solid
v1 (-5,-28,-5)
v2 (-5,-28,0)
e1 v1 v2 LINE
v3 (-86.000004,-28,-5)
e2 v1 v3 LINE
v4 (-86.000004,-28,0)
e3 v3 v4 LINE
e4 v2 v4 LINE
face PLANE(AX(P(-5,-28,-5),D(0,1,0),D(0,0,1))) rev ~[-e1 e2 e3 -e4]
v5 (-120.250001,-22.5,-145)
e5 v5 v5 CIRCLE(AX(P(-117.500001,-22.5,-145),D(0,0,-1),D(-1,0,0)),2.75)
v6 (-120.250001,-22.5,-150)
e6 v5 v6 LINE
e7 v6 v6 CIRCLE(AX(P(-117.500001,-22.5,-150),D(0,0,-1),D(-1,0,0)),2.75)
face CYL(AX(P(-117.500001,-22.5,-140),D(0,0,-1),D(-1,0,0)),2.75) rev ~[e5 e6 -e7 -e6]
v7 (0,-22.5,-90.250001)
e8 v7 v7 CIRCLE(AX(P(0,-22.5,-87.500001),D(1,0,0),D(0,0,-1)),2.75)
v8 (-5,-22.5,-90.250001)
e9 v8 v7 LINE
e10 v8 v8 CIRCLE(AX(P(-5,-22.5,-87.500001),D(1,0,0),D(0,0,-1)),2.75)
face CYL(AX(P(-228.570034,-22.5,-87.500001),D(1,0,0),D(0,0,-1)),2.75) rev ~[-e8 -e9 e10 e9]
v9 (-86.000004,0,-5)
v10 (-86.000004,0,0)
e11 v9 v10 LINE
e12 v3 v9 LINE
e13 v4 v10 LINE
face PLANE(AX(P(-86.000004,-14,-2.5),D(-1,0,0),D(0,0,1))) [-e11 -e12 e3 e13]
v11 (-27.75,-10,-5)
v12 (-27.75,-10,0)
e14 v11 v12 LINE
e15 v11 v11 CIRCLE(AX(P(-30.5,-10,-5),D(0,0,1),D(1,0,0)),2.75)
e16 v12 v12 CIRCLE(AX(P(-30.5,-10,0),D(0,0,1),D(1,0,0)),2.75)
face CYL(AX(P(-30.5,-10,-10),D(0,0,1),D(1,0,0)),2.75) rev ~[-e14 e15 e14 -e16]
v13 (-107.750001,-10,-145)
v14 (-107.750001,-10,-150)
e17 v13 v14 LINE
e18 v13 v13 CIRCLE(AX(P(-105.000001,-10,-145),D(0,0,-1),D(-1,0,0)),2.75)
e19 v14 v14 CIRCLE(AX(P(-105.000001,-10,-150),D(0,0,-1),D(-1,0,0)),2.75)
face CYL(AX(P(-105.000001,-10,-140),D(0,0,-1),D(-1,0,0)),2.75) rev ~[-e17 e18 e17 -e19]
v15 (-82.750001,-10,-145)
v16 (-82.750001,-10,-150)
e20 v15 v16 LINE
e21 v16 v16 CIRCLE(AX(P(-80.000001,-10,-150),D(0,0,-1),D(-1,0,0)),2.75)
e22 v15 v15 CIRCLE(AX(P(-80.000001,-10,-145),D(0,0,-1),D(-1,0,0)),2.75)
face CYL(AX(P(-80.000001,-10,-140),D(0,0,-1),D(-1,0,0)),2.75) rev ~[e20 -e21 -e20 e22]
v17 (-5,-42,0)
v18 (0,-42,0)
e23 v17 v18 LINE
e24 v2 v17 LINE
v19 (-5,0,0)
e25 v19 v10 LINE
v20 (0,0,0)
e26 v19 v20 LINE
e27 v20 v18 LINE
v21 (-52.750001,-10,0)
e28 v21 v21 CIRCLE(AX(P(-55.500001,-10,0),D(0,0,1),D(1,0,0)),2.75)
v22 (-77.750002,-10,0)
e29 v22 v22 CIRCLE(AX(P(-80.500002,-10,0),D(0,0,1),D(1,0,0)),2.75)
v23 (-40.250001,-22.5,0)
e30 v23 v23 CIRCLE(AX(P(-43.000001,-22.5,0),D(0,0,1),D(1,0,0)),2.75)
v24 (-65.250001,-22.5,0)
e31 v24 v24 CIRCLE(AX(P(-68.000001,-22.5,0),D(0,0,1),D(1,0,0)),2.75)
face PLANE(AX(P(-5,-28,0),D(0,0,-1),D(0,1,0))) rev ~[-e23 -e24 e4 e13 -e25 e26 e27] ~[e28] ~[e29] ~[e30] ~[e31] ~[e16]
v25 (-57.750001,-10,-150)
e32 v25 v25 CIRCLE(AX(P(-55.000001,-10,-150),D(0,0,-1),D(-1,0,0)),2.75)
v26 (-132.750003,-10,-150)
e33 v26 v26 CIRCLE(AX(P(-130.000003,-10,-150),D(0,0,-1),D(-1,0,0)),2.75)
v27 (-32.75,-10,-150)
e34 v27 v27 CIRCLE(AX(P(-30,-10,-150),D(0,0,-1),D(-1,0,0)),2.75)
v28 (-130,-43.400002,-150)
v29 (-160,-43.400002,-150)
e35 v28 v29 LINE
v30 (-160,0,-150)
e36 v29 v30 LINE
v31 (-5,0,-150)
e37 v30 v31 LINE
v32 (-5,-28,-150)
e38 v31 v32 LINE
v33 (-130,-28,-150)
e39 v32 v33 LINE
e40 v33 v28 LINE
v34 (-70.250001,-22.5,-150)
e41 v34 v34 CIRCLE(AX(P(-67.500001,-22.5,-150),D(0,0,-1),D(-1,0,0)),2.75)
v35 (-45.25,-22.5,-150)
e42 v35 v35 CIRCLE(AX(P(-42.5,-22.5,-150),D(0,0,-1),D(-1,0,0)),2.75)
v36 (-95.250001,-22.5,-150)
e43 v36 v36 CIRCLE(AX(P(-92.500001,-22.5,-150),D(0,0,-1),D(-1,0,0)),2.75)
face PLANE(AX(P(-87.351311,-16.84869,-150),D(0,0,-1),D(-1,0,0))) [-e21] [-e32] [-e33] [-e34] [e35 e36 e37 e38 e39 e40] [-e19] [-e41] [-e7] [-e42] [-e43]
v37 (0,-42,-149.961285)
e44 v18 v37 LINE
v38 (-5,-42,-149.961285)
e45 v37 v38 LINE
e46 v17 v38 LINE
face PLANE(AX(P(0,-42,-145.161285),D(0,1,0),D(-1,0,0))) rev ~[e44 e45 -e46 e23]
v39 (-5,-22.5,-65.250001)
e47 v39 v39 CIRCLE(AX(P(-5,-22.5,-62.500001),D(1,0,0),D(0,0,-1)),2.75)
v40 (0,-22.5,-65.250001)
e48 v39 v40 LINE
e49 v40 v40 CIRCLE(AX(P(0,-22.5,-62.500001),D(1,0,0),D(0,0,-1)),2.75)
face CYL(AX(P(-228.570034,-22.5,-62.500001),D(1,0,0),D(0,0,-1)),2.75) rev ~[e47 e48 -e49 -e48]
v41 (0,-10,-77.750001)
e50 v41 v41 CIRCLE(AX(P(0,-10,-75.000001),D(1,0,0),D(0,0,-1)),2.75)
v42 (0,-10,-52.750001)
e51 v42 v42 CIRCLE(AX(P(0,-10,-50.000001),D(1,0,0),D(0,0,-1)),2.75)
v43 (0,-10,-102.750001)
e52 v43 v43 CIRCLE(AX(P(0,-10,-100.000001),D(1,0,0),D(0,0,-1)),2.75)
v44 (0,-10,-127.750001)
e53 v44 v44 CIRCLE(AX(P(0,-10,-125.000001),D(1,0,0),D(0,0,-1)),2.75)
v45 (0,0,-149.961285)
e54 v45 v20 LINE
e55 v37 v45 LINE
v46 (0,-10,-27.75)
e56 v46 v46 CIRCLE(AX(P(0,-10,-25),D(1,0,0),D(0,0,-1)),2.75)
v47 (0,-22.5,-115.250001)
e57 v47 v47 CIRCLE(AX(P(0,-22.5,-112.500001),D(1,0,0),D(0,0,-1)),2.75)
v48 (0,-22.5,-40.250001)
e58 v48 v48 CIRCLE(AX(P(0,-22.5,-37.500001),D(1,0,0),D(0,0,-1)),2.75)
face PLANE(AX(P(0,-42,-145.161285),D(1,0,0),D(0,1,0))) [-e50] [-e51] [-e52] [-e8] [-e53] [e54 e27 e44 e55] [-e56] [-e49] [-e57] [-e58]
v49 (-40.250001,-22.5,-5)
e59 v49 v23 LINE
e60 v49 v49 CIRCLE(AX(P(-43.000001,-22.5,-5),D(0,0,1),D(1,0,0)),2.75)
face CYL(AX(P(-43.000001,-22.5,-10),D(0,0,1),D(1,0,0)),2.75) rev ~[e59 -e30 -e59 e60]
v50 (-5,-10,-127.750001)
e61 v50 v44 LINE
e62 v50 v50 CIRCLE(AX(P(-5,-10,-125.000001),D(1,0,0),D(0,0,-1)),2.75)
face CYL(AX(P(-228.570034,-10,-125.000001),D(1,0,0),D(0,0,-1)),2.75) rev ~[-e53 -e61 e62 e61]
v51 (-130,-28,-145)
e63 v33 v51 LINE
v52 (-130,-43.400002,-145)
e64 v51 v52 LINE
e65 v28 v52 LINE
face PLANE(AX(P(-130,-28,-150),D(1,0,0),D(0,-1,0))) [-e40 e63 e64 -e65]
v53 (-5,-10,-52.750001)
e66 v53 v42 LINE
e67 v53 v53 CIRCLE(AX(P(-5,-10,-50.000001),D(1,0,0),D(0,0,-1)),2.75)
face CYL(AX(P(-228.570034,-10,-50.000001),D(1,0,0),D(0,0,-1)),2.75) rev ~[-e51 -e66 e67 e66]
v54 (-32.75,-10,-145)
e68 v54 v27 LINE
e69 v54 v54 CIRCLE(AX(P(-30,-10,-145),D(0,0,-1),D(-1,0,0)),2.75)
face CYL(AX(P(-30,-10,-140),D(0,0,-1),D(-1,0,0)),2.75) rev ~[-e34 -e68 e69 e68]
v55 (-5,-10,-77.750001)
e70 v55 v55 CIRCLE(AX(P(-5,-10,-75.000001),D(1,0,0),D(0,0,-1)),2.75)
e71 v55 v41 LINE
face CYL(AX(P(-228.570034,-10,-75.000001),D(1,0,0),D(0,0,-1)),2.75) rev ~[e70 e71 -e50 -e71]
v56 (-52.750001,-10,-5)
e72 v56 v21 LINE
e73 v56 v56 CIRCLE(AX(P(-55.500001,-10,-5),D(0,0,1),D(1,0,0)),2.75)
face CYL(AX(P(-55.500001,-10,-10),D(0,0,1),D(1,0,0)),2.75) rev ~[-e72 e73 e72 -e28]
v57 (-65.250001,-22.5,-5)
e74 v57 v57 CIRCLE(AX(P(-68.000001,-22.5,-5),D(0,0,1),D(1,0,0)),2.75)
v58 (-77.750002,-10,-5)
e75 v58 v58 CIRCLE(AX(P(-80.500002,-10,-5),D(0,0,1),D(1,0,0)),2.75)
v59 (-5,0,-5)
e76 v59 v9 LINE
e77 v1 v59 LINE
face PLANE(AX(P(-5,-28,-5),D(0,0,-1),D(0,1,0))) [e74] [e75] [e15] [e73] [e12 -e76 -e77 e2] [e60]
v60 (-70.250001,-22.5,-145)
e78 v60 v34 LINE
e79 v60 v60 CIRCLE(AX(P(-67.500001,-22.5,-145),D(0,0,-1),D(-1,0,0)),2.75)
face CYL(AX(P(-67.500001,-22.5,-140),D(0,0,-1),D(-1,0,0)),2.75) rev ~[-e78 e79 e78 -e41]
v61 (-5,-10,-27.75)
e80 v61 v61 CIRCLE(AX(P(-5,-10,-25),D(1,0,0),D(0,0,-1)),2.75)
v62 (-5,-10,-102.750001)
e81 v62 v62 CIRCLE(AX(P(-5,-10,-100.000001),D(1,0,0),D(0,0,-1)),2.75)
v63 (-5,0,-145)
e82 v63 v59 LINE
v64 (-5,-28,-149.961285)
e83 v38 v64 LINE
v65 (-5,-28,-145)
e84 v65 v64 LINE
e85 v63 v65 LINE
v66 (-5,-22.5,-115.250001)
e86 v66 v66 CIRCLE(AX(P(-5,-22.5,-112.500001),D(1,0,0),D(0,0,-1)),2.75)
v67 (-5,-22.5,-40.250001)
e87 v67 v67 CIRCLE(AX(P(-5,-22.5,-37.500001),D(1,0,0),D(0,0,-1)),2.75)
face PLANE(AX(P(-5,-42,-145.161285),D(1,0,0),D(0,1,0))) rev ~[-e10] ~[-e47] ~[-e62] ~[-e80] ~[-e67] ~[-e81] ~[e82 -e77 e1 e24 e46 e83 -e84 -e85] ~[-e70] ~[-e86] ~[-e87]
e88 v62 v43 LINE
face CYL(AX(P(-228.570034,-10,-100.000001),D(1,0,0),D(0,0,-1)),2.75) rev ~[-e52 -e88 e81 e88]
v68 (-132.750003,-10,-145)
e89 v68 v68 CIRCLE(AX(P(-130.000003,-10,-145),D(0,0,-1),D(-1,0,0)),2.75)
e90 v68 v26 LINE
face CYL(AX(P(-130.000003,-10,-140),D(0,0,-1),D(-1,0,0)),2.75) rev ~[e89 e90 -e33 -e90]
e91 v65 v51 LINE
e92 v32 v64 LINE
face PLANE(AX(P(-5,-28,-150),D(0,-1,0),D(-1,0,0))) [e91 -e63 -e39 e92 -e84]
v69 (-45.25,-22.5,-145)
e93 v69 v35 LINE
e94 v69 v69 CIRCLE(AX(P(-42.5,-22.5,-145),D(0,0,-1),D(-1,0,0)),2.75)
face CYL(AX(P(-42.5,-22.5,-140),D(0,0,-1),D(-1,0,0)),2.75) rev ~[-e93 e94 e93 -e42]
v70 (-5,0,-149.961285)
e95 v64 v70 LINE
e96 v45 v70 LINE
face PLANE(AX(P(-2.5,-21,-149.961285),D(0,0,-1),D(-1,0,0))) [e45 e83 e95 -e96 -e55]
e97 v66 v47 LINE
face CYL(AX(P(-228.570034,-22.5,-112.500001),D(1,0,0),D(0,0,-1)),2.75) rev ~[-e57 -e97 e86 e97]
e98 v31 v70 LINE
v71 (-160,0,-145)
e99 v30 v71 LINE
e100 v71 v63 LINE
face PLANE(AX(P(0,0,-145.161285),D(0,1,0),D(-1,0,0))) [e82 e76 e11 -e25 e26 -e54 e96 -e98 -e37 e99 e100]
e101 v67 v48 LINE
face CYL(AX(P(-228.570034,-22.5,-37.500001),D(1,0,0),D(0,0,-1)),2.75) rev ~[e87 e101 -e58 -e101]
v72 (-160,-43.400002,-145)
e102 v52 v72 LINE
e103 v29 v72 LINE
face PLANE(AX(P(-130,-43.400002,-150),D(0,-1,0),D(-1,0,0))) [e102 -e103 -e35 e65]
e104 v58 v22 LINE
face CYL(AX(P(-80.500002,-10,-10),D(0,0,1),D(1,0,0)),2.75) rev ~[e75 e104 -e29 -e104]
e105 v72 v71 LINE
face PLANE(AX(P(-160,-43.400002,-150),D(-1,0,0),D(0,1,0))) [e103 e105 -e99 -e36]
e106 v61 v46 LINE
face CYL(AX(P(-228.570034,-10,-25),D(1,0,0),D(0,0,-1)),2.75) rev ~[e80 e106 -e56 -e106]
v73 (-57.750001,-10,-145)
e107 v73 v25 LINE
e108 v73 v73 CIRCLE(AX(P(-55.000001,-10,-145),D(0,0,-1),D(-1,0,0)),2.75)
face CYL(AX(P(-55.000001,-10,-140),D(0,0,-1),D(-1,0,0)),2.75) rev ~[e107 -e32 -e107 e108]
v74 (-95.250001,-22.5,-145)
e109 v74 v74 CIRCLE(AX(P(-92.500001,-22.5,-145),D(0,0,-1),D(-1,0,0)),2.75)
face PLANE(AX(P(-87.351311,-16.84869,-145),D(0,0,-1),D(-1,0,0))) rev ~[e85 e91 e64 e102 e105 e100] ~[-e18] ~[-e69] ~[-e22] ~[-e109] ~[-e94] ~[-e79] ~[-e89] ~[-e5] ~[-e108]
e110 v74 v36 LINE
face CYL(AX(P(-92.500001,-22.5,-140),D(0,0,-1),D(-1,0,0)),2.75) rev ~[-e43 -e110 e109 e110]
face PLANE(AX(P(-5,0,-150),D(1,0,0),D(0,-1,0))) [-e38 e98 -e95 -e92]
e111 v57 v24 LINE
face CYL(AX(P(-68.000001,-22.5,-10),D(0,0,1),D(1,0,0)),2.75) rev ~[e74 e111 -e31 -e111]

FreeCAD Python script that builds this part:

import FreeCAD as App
import Part
import Sketcher
from FreeCAD import Vector
Q = App.Units.Quantity


def add_polygon(sketch, points):
    """Adds a closed chain of lines whose ends are joined by coincident constraints."""
    first, n = sketch.GeometryCount, len(points)
    for a, b in zip(points, points[1:] + points[:1]):
        sketch.addGeometry(Part.LineSegment(App.Vector(*a, 0), App.Vector(*b, 0)), False)
    for i in range(n):
        sketch.addConstraint(Sketcher.Constraint("Coincident", first + i, 2, first + (i + 1) % n, 1))

doc = App.newDocument("Part")
body = doc.addObject("PartDesign::Body", "Body")

sketch1 = body.newObject("Sketcher::SketchObject", "Sketch")
sketch1.AttachmentSupport = (doc.getObject("YZ_Plane"), [""])
sketch1.MapMode = "FlatFace"
sketch1.AttachmentOffset = App.Placement(Vector(0, 0, -5), App.Rotation())
add_polygon(sketch1, [(0, 0), (0, -145), (-42, -145), (-42, 0)])
sketch1.addConstraint(Sketcher.Constraint("Vertical", 0))
sketch1.addConstraint(Sketcher.Constraint("Horizontal", 1))
sketch1.addConstraint(Sketcher.Constraint("Vertical", 2))
sketch1.addConstraint(Sketcher.Constraint("Horizontal", 3))
sketch1.addConstraint(Sketcher.Constraint("Coincident", 3, 2, -1, 1))
sketch1.addConstraint(Sketcher.Constraint("DistanceX", 1, 2, 1, 1, Q("42 mm")))
sketch1.addConstraint(Sketcher.Constraint("DistanceY", 0, 2, 0, 1, Q("145.161285 mm")))
pad1 = body.newObject("PartDesign::Pad", "Pad")
pad1.Profile = sketch1
pad1.Length = 5

sketch2 = body.newObject("Sketcher::SketchObject", "Sketch001")
sketch2.AttachmentSupport = (doc.getObject("XY_Plane"), [""])
sketch2.MapMode = "FlatFace"
sketch2.AttachmentOffset = App.Placement(Vector(0, 0, -150), App.Rotation())
add_polygon(sketch2, [(-130, -43), (-160, -43), (-160, 0), (-5, 0), (-5, -28), (-130, -28)])
sketch2.addConstraint(Sketcher.Constraint("Horizontal", 0))
sketch2.addConstraint(Sketcher.Constraint("Vertical", 1))
sketch2.addConstraint(Sketcher.Constraint("Horizontal", 2))
sketch2.addConstraint(Sketcher.Constraint("Vertical", 3))
sketch2.addConstraint(Sketcher.Constraint("Horizontal", 4))
sketch2.addConstraint(Sketcher.Constraint("Vertical", 5))
sketch2.addConstraint(Sketcher.Constraint("PointOnObject", 1, 2, -1))
sketch2.addConstraint(Sketcher.Constraint("DistanceX", 0, 2, 0, 1, Q("30 mm")))
sketch2.addConstraint(Sketcher.Constraint("DistanceX", 2, 1, 2, 2, Q("155 mm")))
sketch2.addConstraint(Sketcher.Constraint("DistanceY", 3, 2, 3, 1, Q("28 mm")))
sketch2.addConstraint(Sketcher.Constraint("DistanceY", 1, 1, 1, 2, Q("43.400002 mm")))
sketch2.addConstraint(Sketcher.Constraint("DistanceX", 0, 2, -1, 1, Q("160 mm")))
pad2 = body.newObject("PartDesign::Pad", "Pad001")
pad2.Profile = sketch2
pad2.Length = 5

sketch3 = body.newObject("Sketcher::SketchObject", "Sketch002")
sketch3.AttachmentSupport = (doc.getObject("YZ_Plane"), [""])
sketch3.MapMode = "FlatFace"
sketch3.AttachmentOffset = App.Placement(Vector(0, 0, -5), App.Rotation())
add_polygon(sketch3, [(0, -5), (-28, -5), (-28, 0), (0, 0)])
sketch3.addConstraint(Sketcher.Constraint("Horizontal", 0))
sketch3.addConstraint(Sketcher.Constraint("Vertical", 1))
sketch3.addConstraint(Sketcher.Constraint("Horizontal", 2))
sketch3.addConstraint(Sketcher.Constraint("Vertical", 3))
sketch3.addConstraint(Sketcher.Constraint("Coincident", 2, 2, -1, 1))
sketch3.addConstraint(Sketcher.Constraint("DistanceX", 0, 2, 0, 1, Q("28 mm")))
sketch3.addConstraint(Sketcher.Constraint("DistanceY", 1, 1, 1, 2, Q("5 mm")))
pad3 = body.newObject("PartDesign::Pad", "Pad002")
pad3.Profile = sketch3
pad3.Length = 81.000004
pad3.Reversed = True

sketch4 = body.newObject("Sketcher::SketchObject", "Sketch003")
sketch4.AttachmentSupport = (doc.getObject("YZ_Plane"), [""])
sketch4.MapMode = "FlatFace"
sketch4.AttachmentOffset = App.Placement(Vector(0, 0, -5), App.Rotation())
sketch4.addGeometry(Part.Circle(Vector(-22.5, -37.5, 0), Vector(0, 0, 1), 2.8), False)
sketch4.addGeometry(Part.Circle(Vector(-10, -25, 0), Vector(0, 0, 1), 2.8), False)
sketch4.addGeometry(Part.Circle(Vector(-10, -50, 0), Vector(0, 0, 1), 2.8), False)
sketch4.addGeometry(Part.Circle(Vector(-22.5, -62.5, 0), Vector(0, 0, 1), 2.8), False)
sketch4.addGeometry(Part.Circle(Vector(-10, -75, 0), Vector(0, 0, 1), 2.8), False)
sketch4.addGeometry(Part.Circle(Vector(-22.5, -87.5, 0), Vector(0, 0, 1), 2.8), False)
sketch4.addGeometry(Part.Circle(Vector(-22.5, -112.5, 0), Vector(0, 0, 1), 2.8), False)
sketch4.addGeometry(Part.Circle(Vector(-10, -100, 0), Vector(0, 0, 1), 2.8), False)
sketch4.addGeometry(Part.Circle(Vector(-10, -125, 0), Vector(0, 0, 1), 2.8), False)
sketch4.addConstraint(Sketcher.Constraint("Equal", 0, 1))
sketch4.addConstraint(Sketcher.Constraint("Equal", 1, 2))
sketch4.addConstraint(Sketcher.Constraint("Equal", 2, 3))
sketch4.addConstraint(Sketcher.Constraint("Equal", 3, 4))
sketch4.addConstraint(Sketcher.Constraint("Equal", 4, 5))
sketch4.addConstraint(Sketcher.Constraint("Equal", 5, 6))
sketch4.addConstraint(Sketcher.Constraint("Equal", 6, 7))
sketch4.addConstraint(Sketcher.Constraint("Equal", 7, 8))
sketch4.addConstraint(Sketcher.Constraint("Vertical", 1, 3, 2, 3))
sketch4.addConstraint(Sketcher.Constraint("Vertical", 0, 3, 3, 3))
sketch4.addConstraint(Sketcher.Constraint("Vertical", 2, 3, 4, 3))
sketch4.addConstraint(Sketcher.Constraint("Vertical", 3, 3, 5, 3))
sketch4.addConstraint(Sketcher.Constraint("Vertical", 5, 3, 6, 3))
sketch4.addConstraint(Sketcher.Constraint("Vertical", 4, 3, 7, 3))
sketch4.addConstraint(Sketcher.Constraint("Vertical", 7, 3, 8, 3))
sketch4.addConstraint(Sketcher.Constraint("Diameter", 0, Q("5.5 mm")))
sketch4.addConstraint(Sketcher.Constraint("DistanceX", 1, 3, -1, 1, Q("10 mm")))
sketch4.addConstraint(Sketcher.Constraint("DistanceY", 1, 3, -1, 1, Q("25 mm")))
sketch4.addConstraint(Sketcher.Constraint("DistanceY", 2, 3, -1, 1, Q("50.000001 mm")))
sketch4.addConstraint(Sketcher.Constraint("DistanceY", 4, 3, -1, 1, Q("75.000001 mm")))
sketch4.addConstraint(Sketcher.Constraint("DistanceY", 7, 3, -1, 1, Q("100.000001 mm")))
sketch4.addConstraint(Sketcher.Constraint("DistanceY", 8, 3, -1, 1, Q("125.000001 mm")))
sketch4.addConstraint(Sketcher.Constraint("DistanceY", 3, 3, 0, 3, Q("25 mm")))
sketch4.addConstraint(Sketcher.Constraint("DistanceY", 5, 3, 3, 3, Q("25 mm")))
sketch4.addConstraint(Sketcher.Constraint("DistanceY", 6, 3, 5, 3, Q("25 mm")))
sketch4.addConstraint(Sketcher.Constraint("DistanceX", 0, 3, -1, 1, Q("22.5 mm")))
sketch4.addConstraint(Sketcher.Constraint("DistanceY", 0, 3, -1, 1, Q("37.500001 mm")))
doc.recompute()
hole = body.newObject("PartDesign::Hole", "Hole")
hole.Profile = sketch4
hole.ThreadType = "None"
hole.Diameter = 5.5
hole.DepthType = "ThroughAll"
hole.Reversed = True

sketch5 = body.newObject("Sketcher::SketchObject", "Sketch004")
sketch5.AttachmentSupport = (doc.getObject("XY_Plane"), [""])
sketch5.MapMode = "FlatFace"
sketch5.AttachmentOffset = App.Placement(Vector(0, 0, -145), App.Rotation())
sketch5.addGeometry(Part.Circle(Vector(-30, -10, 0), Vector(0, 0, 1), 2.8), False)
sketch5.addGeometry(Part.Circle(Vector(-42.5, -22.5, 0), Vector(0, 0, 1), 2.8), False)
sketch5.addGeometry(Part.Circle(Vector(-67.5, -22.5, 0), Vector(0, 0, 1), 2.8), False)
sketch5.addGeometry(Part.Circle(Vector(-55, -10, 0), Vector(0, 0, 1), 2.8), False)
sketch5.addGeometry(Part.Circle(Vector(-80, -10, 0), Vector(0, 0, 1), 2.8), False)
sketch5.addGeometry(Part.Circle(Vector(-92.5, -22.5, 0), Vector(0, 0, 1), 2.8), False)
sketch5.addGeometry(Part.Circle(Vector(-117.5, -22.5, 0), Vector(0, 0, 1), 2.8), False)
sketch5.addGeometry(Part.Circle(Vector(-105, -10, 0), Vector(0, 0, 1), 2.8), False)
sketch5.addGeometry(Part.Circle(Vector(-130, -10, 0), Vector(0, 0, 1), 2.8), False)
sketch5.addConstraint(Sketcher.Constraint("Equal", 0, 1))
sketch5.addConstraint(Sketcher.Constraint("Equal", 1, 2))
sketch5.addConstraint(Sketcher.Constraint("Equal", 2, 3))
sketch5.addConstraint(Sketcher.Constraint("Equal", 3, 4))
sketch5.addConstraint(Sketcher.Constraint("Equal", 4, 5))
sketch5.addConstraint(Sketcher.Constraint("Equal", 5, 6))
sketch5.addConstraint(Sketcher.Constraint("Equal", 6, 7))
sketch5.addConstraint(Sketcher.Constraint("Equal", 7, 8))
sketch5.addConstraint(Sketcher.Constraint("Horizontal", 1, 3, 2, 3))
sketch5.addConstraint(Sketcher.Constraint("Horizontal", 0, 3, 3, 3))
sketch5.addConstraint(Sketcher.Constraint("Horizontal", 3, 3, 4, 3))
sketch5.addConstraint(Sketcher.Constraint("Horizontal", 2, 3, 5, 3))
sketch5.addConstraint(Sketcher.Constraint("Horizontal", 5, 3, 6, 3))
sketch5.addConstraint(Sketcher.Constraint("Horizontal", 4, 3, 7, 3))
sketch5.addConstraint(Sketcher.Constraint("Horizontal", 7, 3, 8, 3))
sketch5.addConstraint(Sketcher.Constraint("Diameter", 0, Q("5.5 mm")))
sketch5.addConstraint(Sketcher.Constraint("DistanceX", 0, 3, -1, 1, Q("30 mm")))
sketch5.addConstraint(Sketcher.Constraint("DistanceY", 0, 3, -1, 1, Q("10 mm")))
sketch5.addConstraint(Sketcher.Constraint("DistanceX", 3, 3, -1, 1, Q("55.000001 mm")))
sketch5.addConstraint(Sketcher.Constraint("DistanceX", 4, 3, -1, 1, Q("80.000001 mm")))
sketch5.addConstraint(Sketcher.Constraint("DistanceX", 7, 3, -1, 1, Q("105.000001 mm")))
sketch5.addConstraint(Sketcher.Constraint("DistanceX", 2, 3, 1, 3, Q("25 mm")))
sketch5.addConstraint(Sketcher.Constraint("DistanceX", 5, 3, 2, 3, Q("25 mm")))
sketch5.addConstraint(Sketcher.Constraint("DistanceX", 6, 3, 5, 3, Q("25 mm")))
sketch5.addConstraint(Sketcher.Constraint("DistanceX", 8, 3, 4, 3, Q("50.000002 mm")))
sketch5.addConstraint(Sketcher.Constraint("DistanceX", 1, 3, -1, 1, Q("42.5 mm")))
sketch5.addConstraint(Sketcher.Constraint("DistanceY", 1, 3, -1, 1, Q("22.5 mm")))
doc.recompute()
hole2 = body.newObject("PartDesign::Hole", "Hole001")
hole2.Profile = sketch5
hole2.ThreadType = "None"
hole2.Diameter = 5.5
hole2.DepthType = "Dimension"
hole2.Depth = 5
hole2.DrillPoint = "Flat"

sketch6 = body.newObject("Sketcher::SketchObject", "Sketch005")
sketch6.AttachmentSupport = (doc.getObject("XY_Plane"), [""])
sketch6.MapMode = "FlatFace"
sketch6.AttachmentOffset = App.Placement(Vector(0, 0, -5), App.Rotation())
sketch6.addGeometry(Part.Circle(Vector(-80.5, -10, 0), Vector(0, 0, 1), 2.8), False)
sketch6.addGeometry(Part.Circle(Vector(-68, -22.5, 0), Vector(0, 0, 1), 2.8), False)
sketch6.addGeometry(Part.Circle(Vector(-43, -22.5, 0), Vector(0, 0, 1), 2.8), False)
sketch6.addGeometry(Part.Circle(Vector(-55.5, -10, 0), Vector(0, 0, 1), 2.8), False)
sketch6.addGeometry(Part.Circle(Vector(-30.5, -10, 0), Vector(0, 0, 1), 2.8), False)
sketch6.addConstraint(Sketcher.Constraint("Equal", 0, 1))
sketch6.addConstraint(Sketcher.Constraint("Equal", 1, 2))
sketch6.addConstraint(Sketcher.Constraint("Equal", 2, 3))
sketch6.addConstraint(Sketcher.Constraint("Equal", 3, 4))
sketch6.addConstraint(Sketcher.Constraint("Horizontal", 1, 3, 2, 3))
sketch6.addConstraint(Sketcher.Constraint("Horizontal", 0, 3, 3, 3))
sketch6.addConstraint(Sketcher.Constraint("Horizontal", 3, 3, 4, 3))
sketch6.addConstraint(Sketcher.Constraint("Diameter", 0, Q("5.5 mm")))
sketch6.addConstraint(Sketcher.Constraint("DistanceY", 0, 3, -1, 1, Q("10 mm")))
sketch6.addConstraint(Sketcher.Constraint("DistanceX", 1, 3, -1, 1, Q("68.000001 mm")))
sketch6.addConstraint(Sketcher.Constraint("DistanceX", 2, 3, -1, 1, Q("43.000001 mm")))
sketch6.addConstraint(Sketcher.Constraint("DistanceX", 0, 3, 3, 3, Q("25 mm")))
sketch6.addConstraint(Sketcher.Constraint("DistanceX", 3, 3, 4, 3, Q("25.000001 mm")))
sketch6.addConstraint(Sketcher.Constraint("DistanceX", 0, 3, -1, 1, Q("80.500002 mm")))
sketch6.addConstraint(Sketcher.Constraint("DistanceY", 1, 3, -1, 1, Q("22.5 mm")))
doc.recompute()
hole3 = body.newObject("PartDesign::Hole", "Hole002")
hole3.Profile = sketch6
hole3.ThreadType = "None"
hole3.Diameter = 5.5
hole3.DepthType = "Dimension"
hole3.Depth = 5
hole3.DrillPoint = "Flat"
hole3.Reversed = True

sketch7 = body.newObject("Sketcher::SketchObject", "Sketch006")
sketch7.AttachmentSupport = (doc.getObject("XY_Plane"), [""])
sketch7.MapMode = "FlatFace"
sketch7.AttachmentOffset = App.Placement(Vector(0, 0, -145.161285), App.Rotation())
add_polygon(sketch7, [(0, 0), (0, -42), (-5, -42), (-5, 0)])
sketch7.addConstraint(Sketcher.Constraint("Vertical", 0))
sketch7.addConstraint(Sketcher.Constraint("Horizontal", 1))
sketch7.addConstraint(Sketcher.Constraint("Vertical", 2))
sketch7.addConstraint(Sketcher.Constraint("Horizontal", 3))
sketch7.addConstraint(Sketcher.Constraint("Coincident", 3, 2, -1, 1))
sketch7.addConstraint(Sketcher.Constraint("DistanceX", 1, 2, 1, 1, Q("5 mm")))
sketch7.addConstraint(Sketcher.Constraint("DistanceY", 0, 2, 0, 1, Q("42 mm")))
pad4 = body.newObject("PartDesign::Pad", "Pad003")
pad4.Profile = sketch7
pad4.Length = 4.8
pad4.Reversed = True

doc.recompute()
